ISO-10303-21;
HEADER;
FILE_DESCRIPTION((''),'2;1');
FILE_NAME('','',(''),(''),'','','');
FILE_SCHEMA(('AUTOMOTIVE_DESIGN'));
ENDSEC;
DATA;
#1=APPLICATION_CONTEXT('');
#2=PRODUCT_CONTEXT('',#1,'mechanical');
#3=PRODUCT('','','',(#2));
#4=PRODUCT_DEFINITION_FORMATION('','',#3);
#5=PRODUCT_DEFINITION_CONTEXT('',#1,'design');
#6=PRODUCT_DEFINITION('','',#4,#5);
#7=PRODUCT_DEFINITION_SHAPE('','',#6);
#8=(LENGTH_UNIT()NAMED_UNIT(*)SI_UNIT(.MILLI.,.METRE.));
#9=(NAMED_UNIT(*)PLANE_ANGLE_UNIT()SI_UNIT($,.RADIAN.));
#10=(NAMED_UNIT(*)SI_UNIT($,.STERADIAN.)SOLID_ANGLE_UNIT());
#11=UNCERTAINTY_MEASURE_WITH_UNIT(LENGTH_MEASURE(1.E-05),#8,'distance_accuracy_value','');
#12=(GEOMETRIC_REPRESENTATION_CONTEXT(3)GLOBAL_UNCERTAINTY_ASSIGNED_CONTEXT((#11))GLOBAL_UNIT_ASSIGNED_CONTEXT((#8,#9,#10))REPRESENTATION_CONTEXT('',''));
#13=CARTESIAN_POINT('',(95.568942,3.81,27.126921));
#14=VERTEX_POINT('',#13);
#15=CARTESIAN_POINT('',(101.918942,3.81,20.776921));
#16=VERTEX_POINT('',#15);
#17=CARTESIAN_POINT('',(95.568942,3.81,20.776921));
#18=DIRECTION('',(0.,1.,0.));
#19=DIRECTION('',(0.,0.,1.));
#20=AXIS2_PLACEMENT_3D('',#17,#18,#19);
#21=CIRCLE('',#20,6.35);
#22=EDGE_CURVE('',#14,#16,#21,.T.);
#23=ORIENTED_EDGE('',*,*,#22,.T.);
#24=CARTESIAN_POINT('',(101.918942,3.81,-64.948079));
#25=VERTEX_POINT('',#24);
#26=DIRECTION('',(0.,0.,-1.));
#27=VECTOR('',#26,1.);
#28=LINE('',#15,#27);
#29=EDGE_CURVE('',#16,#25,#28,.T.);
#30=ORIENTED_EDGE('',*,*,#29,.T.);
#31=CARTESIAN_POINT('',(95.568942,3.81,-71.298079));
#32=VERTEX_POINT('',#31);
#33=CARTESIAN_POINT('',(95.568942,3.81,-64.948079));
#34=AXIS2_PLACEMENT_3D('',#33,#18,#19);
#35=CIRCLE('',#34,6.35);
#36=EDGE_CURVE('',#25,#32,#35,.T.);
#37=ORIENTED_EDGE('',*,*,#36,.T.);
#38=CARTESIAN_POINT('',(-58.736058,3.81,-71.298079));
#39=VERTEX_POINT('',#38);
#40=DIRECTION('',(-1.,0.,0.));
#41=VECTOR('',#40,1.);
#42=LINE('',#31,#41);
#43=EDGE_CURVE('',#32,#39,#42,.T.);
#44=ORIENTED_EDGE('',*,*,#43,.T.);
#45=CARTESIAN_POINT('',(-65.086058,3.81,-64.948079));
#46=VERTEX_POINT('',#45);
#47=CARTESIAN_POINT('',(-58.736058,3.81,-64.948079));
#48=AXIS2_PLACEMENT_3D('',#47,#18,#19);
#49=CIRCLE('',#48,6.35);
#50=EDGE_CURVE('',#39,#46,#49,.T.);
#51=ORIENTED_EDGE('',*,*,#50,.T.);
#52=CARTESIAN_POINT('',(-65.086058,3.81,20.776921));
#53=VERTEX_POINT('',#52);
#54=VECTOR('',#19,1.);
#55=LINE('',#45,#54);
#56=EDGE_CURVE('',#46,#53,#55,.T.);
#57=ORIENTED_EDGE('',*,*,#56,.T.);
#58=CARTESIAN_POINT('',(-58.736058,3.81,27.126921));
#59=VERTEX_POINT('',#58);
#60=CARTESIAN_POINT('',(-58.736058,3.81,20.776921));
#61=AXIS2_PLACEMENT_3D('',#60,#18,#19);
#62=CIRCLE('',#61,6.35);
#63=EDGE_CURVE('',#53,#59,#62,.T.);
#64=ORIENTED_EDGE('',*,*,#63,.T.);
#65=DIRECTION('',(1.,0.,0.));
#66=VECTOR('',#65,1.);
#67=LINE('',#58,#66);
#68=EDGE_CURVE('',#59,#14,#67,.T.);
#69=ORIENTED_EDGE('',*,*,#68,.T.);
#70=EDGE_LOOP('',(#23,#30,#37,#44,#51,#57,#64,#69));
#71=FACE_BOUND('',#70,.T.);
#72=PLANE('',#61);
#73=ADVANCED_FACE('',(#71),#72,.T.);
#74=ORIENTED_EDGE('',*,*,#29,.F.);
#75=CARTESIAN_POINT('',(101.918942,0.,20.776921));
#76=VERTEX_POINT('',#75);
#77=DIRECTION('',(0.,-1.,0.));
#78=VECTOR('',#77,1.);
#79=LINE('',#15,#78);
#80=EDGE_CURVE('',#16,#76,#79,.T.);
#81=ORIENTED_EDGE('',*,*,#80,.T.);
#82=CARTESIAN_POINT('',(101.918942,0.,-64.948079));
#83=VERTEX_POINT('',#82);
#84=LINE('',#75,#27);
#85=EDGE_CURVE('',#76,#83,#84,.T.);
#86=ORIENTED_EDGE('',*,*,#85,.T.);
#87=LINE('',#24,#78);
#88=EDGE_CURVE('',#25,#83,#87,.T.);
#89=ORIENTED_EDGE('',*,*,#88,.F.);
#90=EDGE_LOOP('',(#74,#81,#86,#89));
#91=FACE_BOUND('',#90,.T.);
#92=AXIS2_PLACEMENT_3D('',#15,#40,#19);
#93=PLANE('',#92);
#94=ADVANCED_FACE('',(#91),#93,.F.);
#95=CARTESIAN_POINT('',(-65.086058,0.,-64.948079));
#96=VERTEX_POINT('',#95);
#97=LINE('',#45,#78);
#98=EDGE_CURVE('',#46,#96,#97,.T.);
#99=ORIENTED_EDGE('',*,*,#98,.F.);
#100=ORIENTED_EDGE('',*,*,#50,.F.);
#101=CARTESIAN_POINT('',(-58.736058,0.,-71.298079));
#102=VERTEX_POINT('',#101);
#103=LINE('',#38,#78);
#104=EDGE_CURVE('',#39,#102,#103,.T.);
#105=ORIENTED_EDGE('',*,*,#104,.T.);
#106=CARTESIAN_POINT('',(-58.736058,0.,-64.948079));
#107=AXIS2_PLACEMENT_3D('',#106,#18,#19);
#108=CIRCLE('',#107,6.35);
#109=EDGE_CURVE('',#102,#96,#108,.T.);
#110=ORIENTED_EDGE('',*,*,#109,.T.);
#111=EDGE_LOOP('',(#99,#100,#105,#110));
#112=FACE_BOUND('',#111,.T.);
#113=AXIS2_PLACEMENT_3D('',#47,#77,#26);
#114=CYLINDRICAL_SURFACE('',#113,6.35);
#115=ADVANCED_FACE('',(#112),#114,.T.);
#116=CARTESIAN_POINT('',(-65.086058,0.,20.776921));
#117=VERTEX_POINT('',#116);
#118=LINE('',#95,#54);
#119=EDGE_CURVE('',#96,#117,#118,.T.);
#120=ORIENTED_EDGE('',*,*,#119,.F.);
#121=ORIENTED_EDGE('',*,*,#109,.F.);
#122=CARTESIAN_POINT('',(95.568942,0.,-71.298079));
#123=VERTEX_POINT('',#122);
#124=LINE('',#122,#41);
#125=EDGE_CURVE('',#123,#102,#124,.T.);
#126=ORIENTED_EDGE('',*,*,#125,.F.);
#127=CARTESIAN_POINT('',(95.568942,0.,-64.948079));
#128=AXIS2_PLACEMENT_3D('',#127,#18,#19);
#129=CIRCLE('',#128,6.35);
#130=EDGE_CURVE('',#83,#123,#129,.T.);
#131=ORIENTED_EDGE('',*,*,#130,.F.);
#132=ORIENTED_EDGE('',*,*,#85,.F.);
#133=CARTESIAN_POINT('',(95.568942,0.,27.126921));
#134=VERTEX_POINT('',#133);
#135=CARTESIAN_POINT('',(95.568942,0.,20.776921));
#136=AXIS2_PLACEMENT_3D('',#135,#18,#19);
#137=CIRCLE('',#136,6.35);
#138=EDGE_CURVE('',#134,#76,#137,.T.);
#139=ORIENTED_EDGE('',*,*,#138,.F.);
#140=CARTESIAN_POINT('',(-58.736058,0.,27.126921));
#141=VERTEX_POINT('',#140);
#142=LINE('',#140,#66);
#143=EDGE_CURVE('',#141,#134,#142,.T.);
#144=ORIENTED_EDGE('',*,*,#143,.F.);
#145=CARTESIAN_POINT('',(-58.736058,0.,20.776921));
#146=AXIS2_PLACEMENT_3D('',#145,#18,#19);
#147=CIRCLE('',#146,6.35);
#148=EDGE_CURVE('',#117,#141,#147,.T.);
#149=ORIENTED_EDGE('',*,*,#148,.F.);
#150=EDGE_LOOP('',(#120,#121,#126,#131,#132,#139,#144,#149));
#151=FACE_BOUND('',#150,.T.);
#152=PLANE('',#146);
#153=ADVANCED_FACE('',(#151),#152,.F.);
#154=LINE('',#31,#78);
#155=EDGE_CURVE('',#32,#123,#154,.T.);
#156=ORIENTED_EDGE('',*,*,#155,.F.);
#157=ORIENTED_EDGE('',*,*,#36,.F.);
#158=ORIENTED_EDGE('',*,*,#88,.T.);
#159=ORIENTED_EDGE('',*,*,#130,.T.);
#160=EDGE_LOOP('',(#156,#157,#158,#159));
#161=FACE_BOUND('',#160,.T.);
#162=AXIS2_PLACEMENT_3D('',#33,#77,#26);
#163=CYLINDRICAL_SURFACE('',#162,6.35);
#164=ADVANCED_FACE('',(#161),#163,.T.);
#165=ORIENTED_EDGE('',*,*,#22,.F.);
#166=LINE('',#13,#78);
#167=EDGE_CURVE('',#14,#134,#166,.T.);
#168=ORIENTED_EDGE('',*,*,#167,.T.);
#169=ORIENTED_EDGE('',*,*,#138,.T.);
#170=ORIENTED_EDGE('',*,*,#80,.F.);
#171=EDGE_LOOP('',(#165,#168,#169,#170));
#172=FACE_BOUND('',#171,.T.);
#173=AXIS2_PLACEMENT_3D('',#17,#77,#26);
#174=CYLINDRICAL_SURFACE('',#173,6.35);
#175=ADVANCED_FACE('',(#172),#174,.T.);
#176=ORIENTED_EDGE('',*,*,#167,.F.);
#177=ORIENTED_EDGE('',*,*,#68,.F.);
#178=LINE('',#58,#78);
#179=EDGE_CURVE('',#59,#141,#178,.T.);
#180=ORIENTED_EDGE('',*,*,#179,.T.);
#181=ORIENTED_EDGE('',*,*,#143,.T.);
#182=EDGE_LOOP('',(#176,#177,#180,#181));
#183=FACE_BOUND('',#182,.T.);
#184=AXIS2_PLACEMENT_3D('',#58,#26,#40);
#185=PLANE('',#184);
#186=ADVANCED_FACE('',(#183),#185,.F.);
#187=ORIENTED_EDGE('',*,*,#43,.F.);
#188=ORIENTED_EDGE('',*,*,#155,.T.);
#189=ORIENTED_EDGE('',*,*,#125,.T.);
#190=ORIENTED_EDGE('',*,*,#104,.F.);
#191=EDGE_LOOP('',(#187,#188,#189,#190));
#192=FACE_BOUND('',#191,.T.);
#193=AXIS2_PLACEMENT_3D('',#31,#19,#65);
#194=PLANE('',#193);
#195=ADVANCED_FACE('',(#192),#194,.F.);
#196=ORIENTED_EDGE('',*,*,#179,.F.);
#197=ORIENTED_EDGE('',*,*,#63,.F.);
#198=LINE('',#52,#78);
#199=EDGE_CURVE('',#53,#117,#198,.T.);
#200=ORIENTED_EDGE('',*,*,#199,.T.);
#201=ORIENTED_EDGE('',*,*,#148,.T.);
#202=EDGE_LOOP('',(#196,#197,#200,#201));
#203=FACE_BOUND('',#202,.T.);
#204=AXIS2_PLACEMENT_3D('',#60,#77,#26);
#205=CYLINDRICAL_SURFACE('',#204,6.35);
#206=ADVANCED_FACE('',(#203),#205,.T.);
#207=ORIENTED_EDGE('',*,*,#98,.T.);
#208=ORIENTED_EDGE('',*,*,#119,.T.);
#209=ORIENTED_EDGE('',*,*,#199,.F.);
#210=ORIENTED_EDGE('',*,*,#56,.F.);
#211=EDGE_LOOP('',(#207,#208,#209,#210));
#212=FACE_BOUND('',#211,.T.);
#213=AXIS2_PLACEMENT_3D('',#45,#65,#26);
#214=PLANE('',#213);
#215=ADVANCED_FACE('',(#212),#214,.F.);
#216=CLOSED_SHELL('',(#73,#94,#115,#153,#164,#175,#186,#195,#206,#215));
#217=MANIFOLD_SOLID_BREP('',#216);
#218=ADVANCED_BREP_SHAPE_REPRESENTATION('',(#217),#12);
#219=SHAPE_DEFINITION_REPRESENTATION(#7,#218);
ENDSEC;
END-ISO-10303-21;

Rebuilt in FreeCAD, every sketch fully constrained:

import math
import FreeCAD as App
import Part
import Sketcher

V = App.Vector
Q = App.Units.Quantity

doc = App.newDocument("Part")
body = doc.addObject("PartDesign::Body", "Body")

# Sketch on XZ plane
sketch1 = body.newObject("Sketcher::SketchObject", "Sketch")
sketch1.AttachmentSupport = (doc.getObject("XZ_Plane"), [""])
sketch1.MapMode = "FlatFace"
sketch1.addGeometry(Part.LineSegment(V(-58.736058, 27.126921, 0), V(95.568942, 27.126921, 0)), False)
sketch1.addGeometry(Part.ArcOfCircle(Part.Circle(V(95.568942, 20.776921, 0), V(0, 0, 1), 6.35), math.radians(0), math.radians(90)), False)
sketch1.addGeometry(Part.LineSegment(V(101.918942, 20.776921, 0), V(101.918942, -64.948079, 0)), False)
sketch1.addGeometry(Part.ArcOfCircle(Part.Circle(V(95.568942, -64.948079, 0), V(0, 0, 1), 6.35), math.radians(-90), math.radians(0)), False)
sketch1.addGeometry(Part.LineSegment(V(95.568942, -71.298079, 0), V(-58.736058, -71.298079, 0)), False)
sketch1.addGeometry(Part.ArcOfCircle(Part.Circle(V(-58.736058, -64.948079, 0), V(0, 0, 1), 6.35), math.radians(180), math.radians(270)), False)
sketch1.addGeometry(Part.LineSegment(V(-65.086058, -64.948079, 0), V(-65.086058, 20.776921, 0)), False)
sketch1.addGeometry(Part.ArcOfCircle(Part.Circle(V(-58.736058, 20.776921, 0), V(0, 0, 1), 6.35), math.radians(90), math.radians(180)), False)
sketch1.addConstraint(Sketcher.Constraint("Tangent", 0, 2, 1, 2))
sketch1.addConstraint(Sketcher.Constraint("Tangent", 1, 1, 2, 1))
sketch1.addConstraint(Sketcher.Constraint("Tangent", 2, 2, 3, 2))
sketch1.addConstraint(Sketcher.Constraint("Tangent", 3, 1, 4, 1))
sketch1.addConstraint(Sketcher.Constraint("Tangent", 4, 2, 5, 2))
sketch1.addConstraint(Sketcher.Constraint("Tangent", 5, 1, 6, 1))
sketch1.addConstraint(Sketcher.Constraint("Tangent", 6, 2, 7, 2))
sketch1.addConstraint(Sketcher.Constraint("Tangent", 7, 1, 0, 1))
sketch1.addConstraint(Sketcher.Constraint("Horizontal", 0))
sketch1.addConstraint(Sketcher.Constraint("Vertical", 2))
sketch1.addConstraint(Sketcher.Constraint("Horizontal", 4))
sketch1.addConstraint(Sketcher.Constraint("Vertical", 6))
sketch1.addConstraint(Sketcher.Constraint("Equal", 1, 3))
sketch1.addConstraint(Sketcher.Constraint("Equal", 3, 5))
sketch1.addConstraint(Sketcher.Constraint("Equal", 5, 7))
sketch1.addConstraint(Sketcher.Constraint("Radius", 1, Q("0.25 in")))
sketch1.addConstraint(Sketcher.Constraint("DistanceX", 0, 1, 0, 2, Q("6.075 in")))
sketch1.addConstraint(Sketcher.Constraint("DistanceY", 2, 2, 2, 1, Q("3.375 in")))
sketch1.addConstraint(Sketcher.Constraint("DistanceY", -1, 1, 1, 3, 20.776921))
sketch1.addConstraint(Sketcher.Constraint("DistanceX", -1, 1, 1, 3, 95.568942))
pad1 = body.newObject("PartDesign::Pad", "Pad")
pad1.Profile = sketch1
pad1.Length = Q("0.15 in")
pad1.Reversed = True

doc.recompute()
